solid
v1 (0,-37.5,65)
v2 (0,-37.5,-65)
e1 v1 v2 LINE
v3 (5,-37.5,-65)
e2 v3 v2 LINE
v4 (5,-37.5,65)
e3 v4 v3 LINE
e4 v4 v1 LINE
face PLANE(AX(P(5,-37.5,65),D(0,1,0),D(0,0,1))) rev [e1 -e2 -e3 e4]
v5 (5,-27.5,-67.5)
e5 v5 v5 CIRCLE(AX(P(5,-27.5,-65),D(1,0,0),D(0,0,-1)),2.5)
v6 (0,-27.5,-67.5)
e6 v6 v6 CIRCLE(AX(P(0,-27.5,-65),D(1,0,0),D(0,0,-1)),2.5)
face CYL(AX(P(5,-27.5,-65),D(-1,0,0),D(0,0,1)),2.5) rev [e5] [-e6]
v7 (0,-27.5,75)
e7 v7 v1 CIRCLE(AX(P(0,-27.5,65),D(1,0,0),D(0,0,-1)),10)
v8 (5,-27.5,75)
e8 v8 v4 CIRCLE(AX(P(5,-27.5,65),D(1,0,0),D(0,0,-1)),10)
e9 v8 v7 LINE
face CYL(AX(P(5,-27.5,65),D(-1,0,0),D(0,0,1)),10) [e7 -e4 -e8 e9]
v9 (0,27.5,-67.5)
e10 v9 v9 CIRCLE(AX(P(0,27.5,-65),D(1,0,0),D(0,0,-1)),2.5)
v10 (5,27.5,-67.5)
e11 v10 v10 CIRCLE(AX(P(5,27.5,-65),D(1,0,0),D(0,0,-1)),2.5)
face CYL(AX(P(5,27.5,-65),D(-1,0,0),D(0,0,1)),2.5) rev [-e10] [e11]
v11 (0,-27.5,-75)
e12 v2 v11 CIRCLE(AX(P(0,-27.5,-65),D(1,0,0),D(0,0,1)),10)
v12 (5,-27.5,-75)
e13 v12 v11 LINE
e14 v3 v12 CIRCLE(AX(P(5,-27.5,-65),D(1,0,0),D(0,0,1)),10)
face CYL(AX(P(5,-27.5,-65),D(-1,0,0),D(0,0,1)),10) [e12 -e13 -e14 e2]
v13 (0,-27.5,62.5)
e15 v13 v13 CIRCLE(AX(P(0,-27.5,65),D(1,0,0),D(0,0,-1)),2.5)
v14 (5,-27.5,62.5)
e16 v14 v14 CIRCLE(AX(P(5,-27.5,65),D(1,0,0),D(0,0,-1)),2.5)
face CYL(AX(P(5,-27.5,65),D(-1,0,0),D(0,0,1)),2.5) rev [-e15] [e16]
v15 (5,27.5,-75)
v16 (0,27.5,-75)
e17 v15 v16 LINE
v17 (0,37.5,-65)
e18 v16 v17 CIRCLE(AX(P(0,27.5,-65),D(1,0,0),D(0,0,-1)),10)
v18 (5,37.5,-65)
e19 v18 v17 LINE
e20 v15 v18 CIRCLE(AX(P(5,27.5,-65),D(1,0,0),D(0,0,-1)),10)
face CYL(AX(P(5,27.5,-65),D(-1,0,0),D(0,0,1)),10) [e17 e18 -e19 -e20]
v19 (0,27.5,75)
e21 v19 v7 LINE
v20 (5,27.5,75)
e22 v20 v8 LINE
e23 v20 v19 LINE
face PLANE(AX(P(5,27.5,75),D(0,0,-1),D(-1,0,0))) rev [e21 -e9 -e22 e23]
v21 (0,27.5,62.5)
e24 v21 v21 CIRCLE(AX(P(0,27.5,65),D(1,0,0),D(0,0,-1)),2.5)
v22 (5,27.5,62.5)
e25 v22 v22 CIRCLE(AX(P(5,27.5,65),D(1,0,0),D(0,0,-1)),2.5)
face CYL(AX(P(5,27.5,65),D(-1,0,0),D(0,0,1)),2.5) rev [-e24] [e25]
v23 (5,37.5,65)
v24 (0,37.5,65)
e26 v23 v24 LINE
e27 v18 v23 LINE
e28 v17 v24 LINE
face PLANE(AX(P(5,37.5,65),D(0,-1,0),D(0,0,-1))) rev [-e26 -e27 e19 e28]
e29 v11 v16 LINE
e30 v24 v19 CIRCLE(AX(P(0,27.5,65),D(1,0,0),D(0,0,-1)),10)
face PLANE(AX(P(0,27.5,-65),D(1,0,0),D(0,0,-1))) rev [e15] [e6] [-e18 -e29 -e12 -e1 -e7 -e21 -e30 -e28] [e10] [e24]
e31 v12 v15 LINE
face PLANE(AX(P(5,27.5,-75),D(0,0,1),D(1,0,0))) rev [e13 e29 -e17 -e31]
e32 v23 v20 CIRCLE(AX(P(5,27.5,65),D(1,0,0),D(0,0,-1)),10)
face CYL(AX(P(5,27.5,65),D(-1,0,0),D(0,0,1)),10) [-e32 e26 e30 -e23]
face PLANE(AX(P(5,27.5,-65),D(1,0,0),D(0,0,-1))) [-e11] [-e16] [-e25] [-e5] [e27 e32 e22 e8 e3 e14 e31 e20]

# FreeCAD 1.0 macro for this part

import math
import FreeCAD as App
import Part
import Sketcher
Q = App.Units.Quantity

doc = App.newDocument("Part")
body = doc.addObject("PartDesign::Body", "Body")

# Sketch on YZ plane
sketch1 = body.newObject("Sketcher::SketchObject", "Sketch")
sketch1.AttachmentSupport = (doc.getObject("YZ_Plane"), [""])
sketch1.MapMode = "FlatFace"
sketch1.addGeometry(Part.LineSegment(App.Vector(37.5, -65, 0), App.Vector(37.5, 65, 0)), False)
sketch1.addGeometry(Part.ArcOfCircle(Part.Circle(App.Vector(27.5, 65, 0), App.Vector(0, 0, 1), 10), math.radians(0), math.radians(90)), False)
sketch1.addGeometry(Part.LineSegment(App.Vector(27.5, 75, 0), App.Vector(-27.5, 75, 0)), False)
sketch1.addGeometry(Part.ArcOfCircle(Part.Circle(App.Vector(-27.5, 65, 0), App.Vector(0, 0, 1), 10), math.radians(90), math.radians(180)), False)
sketch1.addGeometry(Part.LineSegment(App.Vector(-37.5, 65, 0), App.Vector(-37.5, -65, 0)), False)
sketch1.addGeometry(Part.ArcOfCircle(Part.Circle(App.Vector(-27.5, -65, 0), App.Vector(0, 0, 1), 10), math.radians(180), math.radians(270)), False)
sketch1.addGeometry(Part.LineSegment(App.Vector(-27.5, -75, 0), App.Vector(27.5, -75, 0)), False)
sketch1.addGeometry(Part.ArcOfCircle(Part.Circle(App.Vector(27.5, -65, 0), App.Vector(0, 0, 1), 10), math.radians(-90), math.radians(0)), False)
sketch1.addGeometry(Part.Circle(App.Vector(-27.5, -65, 0), App.Vector(0, 0, 1), 2.5), False)
sketch1.addGeometry(Part.Circle(App.Vector(-27.5, 65, 0), App.Vector(0, 0, 1), 2.5), False)
sketch1.addGeometry(Part.Circle(App.Vector(27.5, -65, 0), App.Vector(0, 0, 1), 2.5), False)
sketch1.addGeometry(Part.Circle(App.Vector(27.5, 65, 0), App.Vector(0, 0, 1), 2.5), False)
sketch1.addConstraint(Sketcher.Constraint("Tangent", 0, 2, 1, 1))
sketch1.addConstraint(Sketcher.Constraint("Tangent", 1, 2, 2, 1))
sketch1.addConstraint(Sketcher.Constraint("Tangent", 2, 2, 3, 1))
sketch1.addConstraint(Sketcher.Constraint("Tangent", 3, 2, 4, 1))
sketch1.addConstraint(Sketcher.Constraint("Tangent", 4, 2, 5, 1))
sketch1.addConstraint(Sketcher.Constraint("Tangent", 5, 2, 6, 1))
sketch1.addConstraint(Sketcher.Constraint("Tangent", 6, 2, 7, 1))
sketch1.addConstraint(Sketcher.Constraint("Tangent", 7, 2, 0, 1))
sketch1.addConstraint(Sketcher.Constraint("Vertical", 0))
sketch1.addConstraint(Sketcher.Constraint("Horizontal", 2))
sketch1.addConstraint(Sketcher.Constraint("Vertical", 4))
sketch1.addConstraint(Sketcher.Constraint("Horizontal", 6))
sketch1.addConstraint(Sketcher.Constraint("Coincident", 8, 3, 5, 3))
sketch1.addConstraint(Sketcher.Constraint("Coincident", 9, 3, 3, 3))
sketch1.addConstraint(Sketcher.Constraint("Coincident", 10, 3, 7, 3))
sketch1.addConstraint(Sketcher.Constraint("Coincident", 11, 3, 1, 3))
sketch1.addConstraint(Sketcher.Constraint("Equal", 1, 3))
sketch1.addConstraint(Sketcher.Constraint("Equal", 3, 5))
sketch1.addConstraint(Sketcher.Constraint("Equal", 5, 7))
sketch1.addConstraint(Sketcher.Constraint("Equal", 8, 9))
sketch1.addConstraint(Sketcher.Constraint("Equal", 9, 10))
sketch1.addConstraint(Sketcher.Constraint("Equal", 10, 11))
sketch1.addConstraint(Sketcher.Constraint("Symmetric", 1, 3, 5, 3, -1, 1))
sketch1.addConstraint(Sketcher.Constraint("Diameter", 8, Q("5 mm")))
sketch1.addConstraint(Sketcher.Constraint("Radius", 1, Q("10 mm")))
sketch1.addConstraint(Sketcher.Constraint("DistanceX", 2, 2, 2, 1, Q("55 mm")))
sketch1.addConstraint(Sketcher.Constraint("DistanceY", 0, 1, 0, 2, Q("130 mm")))
pad1 = body.newObject("PartDesign::Pad", "Pad")
pad1.Profile = sketch1
pad1.Length = 5

doc.recompute()
